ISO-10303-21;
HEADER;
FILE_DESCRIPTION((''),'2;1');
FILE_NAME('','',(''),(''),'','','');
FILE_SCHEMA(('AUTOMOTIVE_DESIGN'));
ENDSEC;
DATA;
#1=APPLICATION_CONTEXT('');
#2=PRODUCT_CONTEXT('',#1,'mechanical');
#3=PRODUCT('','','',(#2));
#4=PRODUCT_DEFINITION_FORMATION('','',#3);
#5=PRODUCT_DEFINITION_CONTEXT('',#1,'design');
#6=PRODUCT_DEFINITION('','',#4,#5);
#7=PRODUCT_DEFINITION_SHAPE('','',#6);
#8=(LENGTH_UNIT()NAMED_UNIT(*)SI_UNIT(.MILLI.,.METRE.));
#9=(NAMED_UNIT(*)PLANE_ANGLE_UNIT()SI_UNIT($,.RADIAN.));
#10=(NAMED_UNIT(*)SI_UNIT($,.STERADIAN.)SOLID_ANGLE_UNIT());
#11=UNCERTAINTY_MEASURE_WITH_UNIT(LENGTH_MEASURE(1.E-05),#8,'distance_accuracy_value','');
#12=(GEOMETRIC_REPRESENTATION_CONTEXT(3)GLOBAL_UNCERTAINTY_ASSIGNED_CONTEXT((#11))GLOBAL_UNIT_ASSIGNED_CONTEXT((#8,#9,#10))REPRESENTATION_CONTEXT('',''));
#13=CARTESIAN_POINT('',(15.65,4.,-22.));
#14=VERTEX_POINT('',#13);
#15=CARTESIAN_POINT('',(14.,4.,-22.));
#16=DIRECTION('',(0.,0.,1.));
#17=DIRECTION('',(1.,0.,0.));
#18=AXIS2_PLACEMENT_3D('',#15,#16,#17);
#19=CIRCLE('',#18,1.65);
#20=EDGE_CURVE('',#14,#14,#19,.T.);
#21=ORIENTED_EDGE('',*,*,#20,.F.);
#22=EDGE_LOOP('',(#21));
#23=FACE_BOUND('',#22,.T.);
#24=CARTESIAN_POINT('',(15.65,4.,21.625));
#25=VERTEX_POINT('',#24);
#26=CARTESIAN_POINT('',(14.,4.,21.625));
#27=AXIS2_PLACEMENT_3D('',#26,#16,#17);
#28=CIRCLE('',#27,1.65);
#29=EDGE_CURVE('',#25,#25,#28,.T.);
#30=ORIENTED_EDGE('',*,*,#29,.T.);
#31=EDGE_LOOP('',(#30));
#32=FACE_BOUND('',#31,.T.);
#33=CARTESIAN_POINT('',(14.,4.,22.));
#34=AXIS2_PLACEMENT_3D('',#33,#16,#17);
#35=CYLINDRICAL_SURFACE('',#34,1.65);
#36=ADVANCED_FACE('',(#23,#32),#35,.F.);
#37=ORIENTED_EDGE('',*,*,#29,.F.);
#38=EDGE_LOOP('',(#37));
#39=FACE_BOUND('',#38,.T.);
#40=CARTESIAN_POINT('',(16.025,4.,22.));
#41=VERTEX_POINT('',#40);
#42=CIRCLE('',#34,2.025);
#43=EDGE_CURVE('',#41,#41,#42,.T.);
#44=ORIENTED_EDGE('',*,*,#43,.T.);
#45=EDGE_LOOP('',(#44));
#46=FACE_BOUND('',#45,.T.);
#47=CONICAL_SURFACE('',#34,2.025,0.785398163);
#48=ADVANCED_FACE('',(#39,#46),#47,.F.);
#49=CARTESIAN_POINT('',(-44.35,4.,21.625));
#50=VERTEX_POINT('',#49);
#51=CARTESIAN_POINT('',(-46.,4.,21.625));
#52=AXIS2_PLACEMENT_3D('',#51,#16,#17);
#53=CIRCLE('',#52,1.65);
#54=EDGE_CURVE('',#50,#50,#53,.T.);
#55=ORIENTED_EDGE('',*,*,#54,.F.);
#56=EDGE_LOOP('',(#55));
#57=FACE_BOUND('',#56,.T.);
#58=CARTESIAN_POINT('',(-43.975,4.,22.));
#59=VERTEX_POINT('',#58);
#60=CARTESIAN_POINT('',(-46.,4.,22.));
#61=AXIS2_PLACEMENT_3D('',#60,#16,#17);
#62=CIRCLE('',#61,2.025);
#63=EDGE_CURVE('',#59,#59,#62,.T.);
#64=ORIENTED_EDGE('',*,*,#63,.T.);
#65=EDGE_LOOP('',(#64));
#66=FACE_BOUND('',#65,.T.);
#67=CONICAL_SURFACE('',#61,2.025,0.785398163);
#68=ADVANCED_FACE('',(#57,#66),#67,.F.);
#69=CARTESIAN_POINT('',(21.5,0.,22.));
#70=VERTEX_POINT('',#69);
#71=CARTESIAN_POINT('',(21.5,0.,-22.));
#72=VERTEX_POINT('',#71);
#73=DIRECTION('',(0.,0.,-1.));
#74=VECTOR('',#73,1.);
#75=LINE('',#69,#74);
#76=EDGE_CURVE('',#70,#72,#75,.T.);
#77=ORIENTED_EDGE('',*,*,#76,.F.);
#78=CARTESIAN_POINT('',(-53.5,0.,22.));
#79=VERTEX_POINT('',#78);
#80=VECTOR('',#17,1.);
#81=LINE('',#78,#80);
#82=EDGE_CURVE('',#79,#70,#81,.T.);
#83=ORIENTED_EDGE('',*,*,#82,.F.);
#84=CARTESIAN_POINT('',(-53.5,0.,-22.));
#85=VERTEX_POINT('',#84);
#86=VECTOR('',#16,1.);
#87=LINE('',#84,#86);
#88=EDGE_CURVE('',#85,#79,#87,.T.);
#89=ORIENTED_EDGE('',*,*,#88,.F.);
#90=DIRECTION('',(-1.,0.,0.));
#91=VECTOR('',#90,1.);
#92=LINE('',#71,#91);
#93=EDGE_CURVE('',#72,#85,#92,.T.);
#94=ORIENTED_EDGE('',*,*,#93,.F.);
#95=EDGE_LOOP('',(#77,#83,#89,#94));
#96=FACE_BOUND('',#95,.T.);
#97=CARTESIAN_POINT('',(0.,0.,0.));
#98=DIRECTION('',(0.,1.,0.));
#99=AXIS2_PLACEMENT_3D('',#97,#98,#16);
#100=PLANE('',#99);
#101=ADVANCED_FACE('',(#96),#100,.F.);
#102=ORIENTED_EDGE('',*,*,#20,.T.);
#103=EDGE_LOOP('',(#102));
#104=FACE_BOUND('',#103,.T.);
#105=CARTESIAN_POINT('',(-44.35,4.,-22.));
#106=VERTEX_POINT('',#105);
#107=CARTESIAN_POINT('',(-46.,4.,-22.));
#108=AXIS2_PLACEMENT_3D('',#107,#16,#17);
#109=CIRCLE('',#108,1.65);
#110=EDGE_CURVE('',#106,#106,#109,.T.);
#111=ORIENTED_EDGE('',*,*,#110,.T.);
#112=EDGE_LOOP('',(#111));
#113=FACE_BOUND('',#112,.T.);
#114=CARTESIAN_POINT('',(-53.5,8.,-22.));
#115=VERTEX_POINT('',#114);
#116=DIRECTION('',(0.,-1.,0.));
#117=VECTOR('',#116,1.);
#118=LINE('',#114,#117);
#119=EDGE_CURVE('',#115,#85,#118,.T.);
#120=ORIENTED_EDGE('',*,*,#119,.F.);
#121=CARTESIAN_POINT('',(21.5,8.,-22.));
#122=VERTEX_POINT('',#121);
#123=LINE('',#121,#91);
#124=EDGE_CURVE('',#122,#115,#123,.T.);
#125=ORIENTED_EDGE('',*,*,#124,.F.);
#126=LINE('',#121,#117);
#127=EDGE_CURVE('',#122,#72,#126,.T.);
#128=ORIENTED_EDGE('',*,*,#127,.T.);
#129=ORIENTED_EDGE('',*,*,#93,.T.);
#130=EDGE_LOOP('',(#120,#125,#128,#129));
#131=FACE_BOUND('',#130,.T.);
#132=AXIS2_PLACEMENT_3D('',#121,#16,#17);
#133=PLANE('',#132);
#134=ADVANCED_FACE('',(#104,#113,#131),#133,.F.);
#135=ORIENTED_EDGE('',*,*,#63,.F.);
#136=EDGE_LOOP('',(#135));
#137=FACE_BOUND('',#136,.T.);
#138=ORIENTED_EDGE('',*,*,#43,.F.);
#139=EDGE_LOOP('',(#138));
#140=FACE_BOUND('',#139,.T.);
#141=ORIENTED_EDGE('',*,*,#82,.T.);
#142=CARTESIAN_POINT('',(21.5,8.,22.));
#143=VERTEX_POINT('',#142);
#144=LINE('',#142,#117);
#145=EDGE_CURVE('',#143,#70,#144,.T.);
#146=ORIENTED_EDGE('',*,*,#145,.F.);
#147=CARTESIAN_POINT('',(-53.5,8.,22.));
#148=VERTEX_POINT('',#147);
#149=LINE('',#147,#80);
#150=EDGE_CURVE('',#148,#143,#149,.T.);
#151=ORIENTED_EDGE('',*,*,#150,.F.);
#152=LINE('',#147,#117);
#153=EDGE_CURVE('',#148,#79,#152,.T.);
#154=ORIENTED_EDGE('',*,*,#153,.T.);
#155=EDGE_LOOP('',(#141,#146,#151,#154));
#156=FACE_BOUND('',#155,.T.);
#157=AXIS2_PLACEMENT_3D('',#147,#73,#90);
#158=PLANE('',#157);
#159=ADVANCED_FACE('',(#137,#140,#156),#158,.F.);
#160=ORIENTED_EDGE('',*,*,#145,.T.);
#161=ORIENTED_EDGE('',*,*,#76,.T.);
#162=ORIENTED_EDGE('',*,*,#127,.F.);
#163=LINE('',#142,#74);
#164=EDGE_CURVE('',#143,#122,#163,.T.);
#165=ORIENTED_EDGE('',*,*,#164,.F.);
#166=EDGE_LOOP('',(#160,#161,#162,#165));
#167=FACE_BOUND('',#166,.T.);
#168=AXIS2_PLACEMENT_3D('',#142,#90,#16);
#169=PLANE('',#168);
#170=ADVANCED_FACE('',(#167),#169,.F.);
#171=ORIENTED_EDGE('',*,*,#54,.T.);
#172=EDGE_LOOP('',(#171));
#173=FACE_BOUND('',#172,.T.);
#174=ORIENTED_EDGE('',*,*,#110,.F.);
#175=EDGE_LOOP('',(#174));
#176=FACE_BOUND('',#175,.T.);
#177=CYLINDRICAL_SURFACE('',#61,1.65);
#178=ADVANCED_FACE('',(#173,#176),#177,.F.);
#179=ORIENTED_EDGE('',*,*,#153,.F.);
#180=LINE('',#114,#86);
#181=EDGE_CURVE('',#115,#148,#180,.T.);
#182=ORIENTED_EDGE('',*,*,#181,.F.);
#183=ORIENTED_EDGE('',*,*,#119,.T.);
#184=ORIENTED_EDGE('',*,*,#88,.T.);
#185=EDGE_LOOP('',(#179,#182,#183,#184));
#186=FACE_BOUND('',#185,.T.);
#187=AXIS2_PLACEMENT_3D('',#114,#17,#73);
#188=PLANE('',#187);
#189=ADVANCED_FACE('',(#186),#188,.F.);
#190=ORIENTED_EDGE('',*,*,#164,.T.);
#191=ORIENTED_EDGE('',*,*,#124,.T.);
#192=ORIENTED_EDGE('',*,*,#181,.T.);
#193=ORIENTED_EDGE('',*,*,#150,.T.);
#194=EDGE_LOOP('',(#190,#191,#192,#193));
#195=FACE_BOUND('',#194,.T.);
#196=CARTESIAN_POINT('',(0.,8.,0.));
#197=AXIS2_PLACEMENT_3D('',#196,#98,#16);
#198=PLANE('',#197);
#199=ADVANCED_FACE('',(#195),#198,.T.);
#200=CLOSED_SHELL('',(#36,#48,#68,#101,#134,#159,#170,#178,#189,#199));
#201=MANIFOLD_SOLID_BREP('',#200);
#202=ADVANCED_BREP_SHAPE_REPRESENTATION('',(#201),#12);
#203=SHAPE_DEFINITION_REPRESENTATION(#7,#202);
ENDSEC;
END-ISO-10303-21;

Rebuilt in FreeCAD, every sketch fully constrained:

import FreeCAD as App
import Part
import Sketcher
Q = App.Units.Quantity


def add_polygon(sketch, points):
    """Adds a closed chain of lines whose ends are joined by coincident constraints."""
    first, n = sketch.GeometryCount, len(points)
    for a, b in zip(points, points[1:] + points[:1]):
        sketch.addGeometry(Part.LineSegment(App.Vector(*a, 0), App.Vector(*b, 0)), False)
    for i in range(n):
        sketch.addConstraint(Sketcher.Constraint("Coincident", first + i, 2, first + (i + 1) % n, 1))

doc = App.newDocument("Part")
body = doc.addObject("PartDesign::Body", "Body")

# Sketch on XZ plane
sketch1 = body.newObject("Sketcher::SketchObject", "Sketch")
sketch1.AttachmentSupport = (doc.getObject("XZ_Plane"), [""])
sketch1.MapMode = "FlatFace"
add_polygon(sketch1, [(-53.5, -22), (-53.5, 22), (21.5, 22), (21.5, -22)])  # lines 0-3
sketch1.addConstraint(Sketcher.Constraint("Vertical", 0))
sketch1.addConstraint(Sketcher.Constraint("Horizontal", 1))
sketch1.addConstraint(Sketcher.Constraint("Vertical", 2))
sketch1.addConstraint(Sketcher.Constraint("Horizontal", 3))
sketch1.addConstraint(Sketcher.Constraint("DistanceX", 1, 1, 1, 2, Q("75 mm")))
sketch1.addConstraint(Sketcher.Constraint("DistanceY", 0, 1, 0, 2, Q("44 mm")))
sketch1.addConstraint(Sketcher.Constraint("DistanceY", -1, 1, 0, 2, Q("22 mm")))
sketch1.addConstraint(Sketcher.Constraint("DistanceX", 0, 2, -1, 1, Q("53.5 mm")))
pad1 = body.newObject("PartDesign::Pad", "Pad")
pad1.Profile = sketch1
pad1.Length = 8
pad1.Reversed = True

# Sketch on XY plane
sketch2 = body.newObject("Sketcher::SketchObject", "Sketch001")
sketch2.AttachmentSupport = (doc.getObject("XY_Plane"), [""])
sketch2.MapMode = "FlatFace"
sketch2.AttachmentOffset = App.Placement(App.Vector(0, 0, 22), App.Rotation())
sketch2.addGeometry(Part.Circle(App.Vector(-46, 4, 0), App.Vector(0, 0, 1), 1.65), False)
sketch2.addGeometry(Part.Circle(App.Vector(14, 4, 0), App.Vector(0, 0, 1), 1.65), False)
sketch2.addConstraint(Sketcher.Constraint("Equal", 0, 1))
sketch2.addConstraint(Sketcher.Constraint("Horizontal", 0, 3, 1, 3))
sketch2.addConstraint(Sketcher.Constraint("Diameter", 0, Q("3.3 mm")))
sketch2.addConstraint(Sketcher.Constraint("DistanceX", 0, 3, -1, 1, Q("46 mm")))
sketch2.addConstraint(Sketcher.Constraint("DistanceY", -1, 1, 0, 3, Q("4 mm")))
sketch2.addConstraint(Sketcher.Constraint("DistanceX", -1, 1, 1, 3, Q("14 mm")))
doc.recompute()
hole = body.newObject("PartDesign::Hole", "Hole")
hole.Profile = sketch2
hole.ThreadType = "None"
hole.Diameter = 3.3
hole.DepthType = "ThroughAll"
hole.HoleCutType = "Countersink"
hole.HoleCutDiameter = 4.05
hole.HoleCutCountersinkAngle = 90

doc.recompute()
